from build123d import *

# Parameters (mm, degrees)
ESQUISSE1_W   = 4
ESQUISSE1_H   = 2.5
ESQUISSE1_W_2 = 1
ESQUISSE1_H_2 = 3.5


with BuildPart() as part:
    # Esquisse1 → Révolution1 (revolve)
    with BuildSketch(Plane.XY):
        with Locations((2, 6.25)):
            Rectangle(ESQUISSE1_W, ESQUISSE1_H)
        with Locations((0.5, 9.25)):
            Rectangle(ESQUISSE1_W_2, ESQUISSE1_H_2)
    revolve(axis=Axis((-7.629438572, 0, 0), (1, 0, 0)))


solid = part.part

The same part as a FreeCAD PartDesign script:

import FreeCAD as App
import Part
import Sketcher

V = App.Vector
Q = App.Units.Quantity


def add_polygon(sketch, points):
    """Adds a closed chain of lines whose ends are joined by coincident constraints."""
    first, n = sketch.GeometryCount, len(points)
    for a, b in zip(points, points[1:] + points[:1]):
        sketch.addGeometry(Part.LineSegment(App.Vector(*a, 0), App.Vector(*b, 0)), False)
    for i in range(n):
        sketch.addConstraint(Sketcher.Constraint("Coincident", first + i, 2, first + (i + 1) % n, 1))

doc = App.newDocument("Part")
body = doc.addObject("PartDesign::Body", "Body")

sketch1 = body.newObject("Sketcher::SketchObject", "Sketch")
sketch1.AttachmentSupport = (doc.getObject("XY_Plane"), [""])
sketch1.MapMode = "FlatFace"
add_polygon(sketch1, [(0, 5), (4, 5), (4, 7.5), (1, 7.5), (1, 11), (0, 11)])
sketch1.addConstraint(Sketcher.Constraint("Horizontal", 0))
sketch1.addConstraint(Sketcher.Constraint("Vertical", 1))
sketch1.addConstraint(Sketcher.Constraint("Horizontal", 2))
sketch1.addConstraint(Sketcher.Constraint("Vertical", 3))
sketch1.addConstraint(Sketcher.Constraint("Horizontal", 4))
sketch1.addConstraint(Sketcher.Constraint("Vertical", 5))
sketch1.addConstraint(Sketcher.Constraint("PointOnObject", 4, 2, -2))
sketch1.addConstraint(Sketcher.Constraint("DistanceX", 0, 1, 0, 2, Q("4 mm")))
sketch1.addConstraint(Sketcher.Constraint("DistanceX", 2, 2, 2, 1, Q("3 mm")))
sketch1.addConstraint(Sketcher.Constraint("DistanceY", 5, 2, 5, 1, Q("6 mm")))
sketch1.addConstraint(Sketcher.Constraint("DistanceY", 1, 1, 1, 2, Q("2.5 mm")))
sketch1.addConstraint(Sketcher.Constraint("DistanceY", -1, 1, 0, 2, Q("5 mm")))
revolution = body.newObject("PartDesign::Revolution", "Revolution")
revolution.Profile = sketch1
revolution.ReferenceAxis = (sketch1, ["H_Axis"])
revolution.Angle = 360

doc.recompute()
